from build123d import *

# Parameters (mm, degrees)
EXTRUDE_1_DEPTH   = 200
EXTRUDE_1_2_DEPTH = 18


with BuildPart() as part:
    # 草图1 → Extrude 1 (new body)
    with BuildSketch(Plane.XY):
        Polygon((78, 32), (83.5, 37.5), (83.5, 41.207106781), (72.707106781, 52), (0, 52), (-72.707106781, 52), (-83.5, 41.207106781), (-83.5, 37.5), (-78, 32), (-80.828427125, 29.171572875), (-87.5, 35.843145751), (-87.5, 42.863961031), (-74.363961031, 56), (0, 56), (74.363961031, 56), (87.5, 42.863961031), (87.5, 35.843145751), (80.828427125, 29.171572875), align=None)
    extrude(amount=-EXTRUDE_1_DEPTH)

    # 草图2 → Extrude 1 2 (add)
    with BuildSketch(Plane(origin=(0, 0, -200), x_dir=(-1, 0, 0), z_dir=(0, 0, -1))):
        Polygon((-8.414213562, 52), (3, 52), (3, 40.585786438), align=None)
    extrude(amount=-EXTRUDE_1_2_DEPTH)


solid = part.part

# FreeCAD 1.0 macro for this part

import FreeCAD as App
import Part
import Sketcher

V = App.Vector

doc = App.newDocument("Part")
params = doc.addObject("Spreadsheet::Sheet", "Params")
for row, (alias, value) in enumerate([
    ("sketch1_length", "4 mm"),
    ("pad1_length", "200 mm"),
    ("pad2_length", "18 mm"),
], start=1):
    params.set(f"A{row}", alias)
    params.set(f"B{row}", "=" + value)
    params.setAlias(f"B{row}", alias)

body = doc.addObject("PartDesign::Body", "Body")

sketch1 = doc.addObject("Sketcher::SketchObject", "Sketch")
body.addObject(sketch1)
sketch1.AttachmentSupport = (doc.XY_Plane, [""])
sketch1.MapMode = "FlatFace"
sketch1.addGeometry([
    Part.LineSegment(V(83.5, 37.5, 0), V(78, 32, 0)),
    Part.LineSegment(V(78, 32, 0), V(80.828427, 29.171573, 0)),
    Part.LineSegment(V(80.828427, 29.171573, 0), V(87.5, 35.843146, 0)),
    Part.LineSegment(V(87.5, 35.843146, 0), V(87.5, 42.863961, 0)),
    Part.LineSegment(V(87.5, 42.863961, 0), V(74.363961, 56, 0)),
    Part.LineSegment(V(74.363961, 56, 0), V(-74.363961, 56, 0)),
    Part.LineSegment(V(-74.363961, 56, 0), V(-87.5, 42.863961, 0)),
    Part.LineSegment(V(-87.5, 42.863961, 0), V(-87.5, 35.843146, 0)),
    Part.LineSegment(V(-87.5, 35.843146, 0), V(-80.828427, 29.171573, 0)),
    Part.LineSegment(V(-80.828427, 29.171573, 0), V(-78, 32, 0)),
    Part.LineSegment(V(-78, 32, 0), V(-83.5, 37.5, 0)),
    Part.LineSegment(V(-83.5, 37.5, 0), V(-83.5, 41.207107, 0)),
    Part.LineSegment(V(-83.5, 41.207107, 0), V(-72.707107, 52, 0)),
    Part.LineSegment(V(-72.707107, 52, 0), V(72.707107, 52, 0)),
    Part.LineSegment(V(72.707107, 52, 0), V(83.5, 41.207107, 0)),
    Part.LineSegment(V(83.5, 41.207107, 0), V(83.5, 37.5, 0)),
], False)
sketch1.addConstraint([
    Sketcher.Constraint("Coincident", 0, 2, 1, 1),
    Sketcher.Constraint("Coincident", 1, 2, 2, 1),
    Sketcher.Constraint("Coincident", 2, 2, 3, 1),
    Sketcher.Constraint("Coincident", 3, 2, 4, 1),
    Sketcher.Constraint("Coincident", 4, 2, 5, 1),
    Sketcher.Constraint("Coincident", 5, 2, 6, 1),
    Sketcher.Constraint("Coincident", 6, 2, 7, 1),
    Sketcher.Constraint("Coincident", 7, 2, 8, 1),
    Sketcher.Constraint("Coincident", 8, 2, 9, 1),
    Sketcher.Constraint("Coincident", 9, 2, 10, 1),
    Sketcher.Constraint("Coincident", 10, 2, 11, 1),
    Sketcher.Constraint("Coincident", 11, 2, 12, 1),
    Sketcher.Constraint("Coincident", 12, 2, 13, 1),
    Sketcher.Constraint("Coincident", 13, 2, 14, 1),
    Sketcher.Constraint("Coincident", 14, 2, 15, 1),
    Sketcher.Constraint("Coincident", 15, 2, 0, 1),
    Sketcher.Constraint("Vertical", 3),
    Sketcher.Constraint("Horizontal", 5),
    Sketcher.Constraint("Vertical", 7),
    Sketcher.Constraint("Vertical", 11),
    Sketcher.Constraint("Horizontal", 13),
    Sketcher.Constraint("Vertical", 15),
    Sketcher.Constraint("Symmetric", 3, 2, 6, 2, -2),
    Sketcher.Constraint("Symmetric", 1, 2, 8, 2, -2),
    Sketcher.Constraint("Symmetric", 0, 2, 9, 2, -2),
    Sketcher.Constraint("Symmetric", 11, 2, 14, 2, -2),
    Sketcher.Constraint("Perpendicular", 0, 1),
    Sketcher.Constraint("Perpendicular", 1, 2),
    Sketcher.Constraint("Perpendicular", 2, 4),
    Sketcher.Constraint("Perpendicular", 4, 6),
    Sketcher.Constraint("Perpendicular", 6, 8),
    Sketcher.Constraint("Perpendicular", 8, 9),
    Sketcher.Constraint("Perpendicular", 9, 10),
    Sketcher.Constraint("Perpendicular", 10, 12),
    Sketcher.Constraint("Perpendicular", 12, 14),
    Sketcher.Constraint("Distance", 1, 4.0),
    Sketcher.Constraint("DistanceX", -1, 1, 0, 2, 78.0),
    Sketcher.Constraint("DistanceY", -1, 1, 0, 2, 32.0),
    Sketcher.Constraint("DistanceY", -1, 1, 4, 2, 56.0),
    Sketcher.Constraint("DistanceY", -1, 1, 12, 2, 52.0),
    Sketcher.Constraint("DistanceX", 6, 2, 3, 2, 175.0),
    Sketcher.Constraint("DistanceX", 7, 2, 10, 2, 4.0),
    Sketcher.Constraint("DistanceX", 5, 2, 5, 1, 148.727922),
    Sketcher.Constraint("DistanceX", 13, 1, 13, 2, 145.414214),
])
sketch1.setExpression("Constraints[35]", "Params.sketch1_length")
pad1 = doc.addObject("PartDesign::Pad", "Pad")
body.addObject(pad1)
pad1.Profile = sketch1
pad1.setExpression("Length", "Params.pad1_length")
pad1.Reversed = True

sketch2 = doc.addObject("Sketcher::SketchObject", "Sketch001")
body.addObject(sketch2)
sketch2.AttachmentSupport = (doc.XY_Plane, [""])
sketch2.MapMode = "FlatFace"
sketch2.AttachmentOffset = App.Placement(V(0, 0, -200), App.Rotation())
sketch2.addGeometry([
    Part.LineSegment(V(-3, 52, 0), V(8.414214, 52, 0)),
    Part.LineSegment(V(8.414214, 52, 0), V(-3, 40.585786, 0)),
    Part.LineSegment(V(-3, 40.585786, 0), V(-3, 52, 0)),
], False)
sketch2.addConstraint([
    Sketcher.Constraint("Coincident", 0, 2, 1, 1),
    Sketcher.Constraint("Coincident", 1, 2, 2, 1),
    Sketcher.Constraint("Coincident", 2, 2, 0, 1),
    Sketcher.Constraint("Horizontal", 0),
    Sketcher.Constraint("Vertical", 2),
    Sketcher.Constraint("Equal", 0, 2),
    Sketcher.Constraint("DistanceY", -1, 1, 0, 2, 52.0),
    Sketcher.Constraint("DistanceX", 1, 2, -1, 1, 3.0),
    Sketcher.Constraint("DistanceX", 0, 1, 0, 2, 11.414214),
])
pad2 = doc.addObject("PartDesign::Pad", "Pad001")
body.addObject(pad2)
pad2.Profile = sketch2
pad2.setExpression("Length", "Params.pad2_length")

doc.recompute()
